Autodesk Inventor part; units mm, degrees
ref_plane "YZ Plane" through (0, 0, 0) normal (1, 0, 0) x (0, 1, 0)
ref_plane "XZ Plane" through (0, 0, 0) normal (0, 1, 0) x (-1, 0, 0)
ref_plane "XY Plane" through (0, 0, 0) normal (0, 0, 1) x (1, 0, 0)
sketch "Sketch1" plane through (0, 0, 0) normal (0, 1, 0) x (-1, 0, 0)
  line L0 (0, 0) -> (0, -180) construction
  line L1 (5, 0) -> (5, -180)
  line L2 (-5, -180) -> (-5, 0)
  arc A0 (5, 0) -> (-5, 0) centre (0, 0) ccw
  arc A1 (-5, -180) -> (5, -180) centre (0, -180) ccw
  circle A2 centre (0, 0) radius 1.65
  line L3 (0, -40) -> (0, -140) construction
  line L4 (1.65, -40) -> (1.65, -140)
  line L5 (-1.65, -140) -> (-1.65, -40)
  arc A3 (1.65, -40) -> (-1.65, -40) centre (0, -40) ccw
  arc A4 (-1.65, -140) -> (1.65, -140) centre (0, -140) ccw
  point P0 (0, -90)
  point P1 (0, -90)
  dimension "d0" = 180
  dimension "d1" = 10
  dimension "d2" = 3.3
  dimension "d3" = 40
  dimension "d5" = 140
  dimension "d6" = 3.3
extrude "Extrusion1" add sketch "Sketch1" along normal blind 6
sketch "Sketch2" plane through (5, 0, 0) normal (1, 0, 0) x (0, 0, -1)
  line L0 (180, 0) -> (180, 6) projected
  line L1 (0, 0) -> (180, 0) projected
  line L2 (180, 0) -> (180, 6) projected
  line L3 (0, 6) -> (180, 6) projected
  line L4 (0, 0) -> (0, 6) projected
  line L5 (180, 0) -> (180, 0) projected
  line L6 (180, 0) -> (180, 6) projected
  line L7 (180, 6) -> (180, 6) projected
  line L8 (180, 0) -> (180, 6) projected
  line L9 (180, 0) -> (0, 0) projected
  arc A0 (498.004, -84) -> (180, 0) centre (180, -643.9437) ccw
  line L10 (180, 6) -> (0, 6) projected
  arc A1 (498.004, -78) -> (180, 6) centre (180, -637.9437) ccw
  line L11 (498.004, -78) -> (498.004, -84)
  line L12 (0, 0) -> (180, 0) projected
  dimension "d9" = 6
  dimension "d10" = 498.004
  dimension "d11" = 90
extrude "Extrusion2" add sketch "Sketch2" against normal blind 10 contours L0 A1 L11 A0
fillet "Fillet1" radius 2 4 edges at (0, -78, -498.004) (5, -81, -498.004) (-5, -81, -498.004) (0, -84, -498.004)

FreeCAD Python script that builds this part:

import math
import FreeCAD as App
import Part
import Sketcher
from FreeCAD import Vector
Q = App.Units.Quantity


def edges_at(feature, points):
    """Names of the edges that pass closest to the given points."""
    edges = feature.Shape.Edges
    near = lambda p: min(range(len(edges)), key=lambda i: edges[i].distToShape(Part.Vertex(*p))[0])
    return sorted({f"Edge{near(p) + 1}" for p in points})

doc = App.newDocument("Part")
body = doc.addObject("PartDesign::Body", "Body")

sketch1 = body.newObject("Sketcher::SketchObject", "Sketch")
sketch1.AttachmentSupport = (doc.getObject("XZ_Plane"), [""])
sketch1.MapMode = "FlatFace"
sketch1.addGeometry([
    Part.LineSegment(Vector(-5, -180, 0), Vector(-5, 0, 0)),
    Part.ArcOfCircle(Part.Circle(Vector(0, 0, 0), Vector(0, 0, 1), 5), math.radians(0), math.radians(180)),
    Part.LineSegment(Vector(5, 0, 0), Vector(5, -180, 0)),
    Part.ArcOfCircle(Part.Circle(Vector(0, -180, 0), Vector(0, 0, 1), 5), math.radians(180), math.radians(360)),
    Part.ArcOfCircle(Part.Circle(Vector(0, -40, 0), Vector(0, 0, 1), 1.65), math.radians(0), math.radians(180)),
    Part.LineSegment(Vector(-1.65, -40, 0), Vector(-1.65, -140, 0)),
    Part.ArcOfCircle(Part.Circle(Vector(0, -140, 0), Vector(0, 0, 1), 1.65), math.radians(180), math.radians(360)),
    Part.LineSegment(Vector(1.65, -140, 0), Vector(1.65, -40, 0)),
    Part.Circle(Vector(0, 0, 0), Vector(0, 0, 1), 1.65),
], False)
sketch1.addConstraint([
    Sketcher.Constraint("Tangent", 0, 2, 1, 2),
    Sketcher.Constraint("Tangent", 1, 1, 2, 1),
    Sketcher.Constraint("Tangent", 2, 2, 3, 2),
    Sketcher.Constraint("Tangent", 3, 1, 0, 1),
    Sketcher.Constraint("Tangent", 4, 2, 5, 1),
    Sketcher.Constraint("Tangent", 5, 2, 6, 1),
    Sketcher.Constraint("Tangent", 6, 2, 7, 1),
    Sketcher.Constraint("Tangent", 7, 2, 4, 1),
    Sketcher.Constraint("Vertical", 0),
    Sketcher.Constraint("Vertical", 2),
    Sketcher.Constraint("Vertical", 5),
    Sketcher.Constraint("Vertical", 7),
    Sketcher.Constraint("Coincident", 1, 3, -1, 1),
    Sketcher.Constraint("Coincident", 8, 3, -1, 1),
    Sketcher.Constraint("Equal", 6, 8),
    Sketcher.Constraint("PointOnObject", 4, 3, -2),
    Sketcher.Constraint("Radius", 1, Q("5 mm")),
    Sketcher.Constraint("Diameter", 8, Q("3.3 mm")),
    Sketcher.Constraint("DistanceY", 0, 1, 0, 2, Q("180 mm")),
    Sketcher.Constraint("DistanceY", 4, 3, -1, 1, Q("40 mm")),
    Sketcher.Constraint("DistanceY", 6, 3, -1, 1, Q("140 mm")),
])
pad1 = body.newObject("PartDesign::Pad", "Pad")
pad1.Profile = sketch1
pad1.Length = 6
pad1.Reversed = True

sketch2 = body.newObject("Sketcher::SketchObject", "Sketch001")
sketch2.AttachmentSupport = (doc.getObject("YZ_Plane"), [""])
sketch2.MapMode = "FlatFace"
sketch2.AttachmentOffset = App.Placement(Vector(0, 0, 5), App.Rotation())
sketch2.addGeometry([
    Part.LineSegment(Vector(6, -180, 0), Vector(0, -180, 0)),
    Part.ArcOfCircle(Part.Circle(Vector(-643.9437, -180, 0), Vector(0, 0, 1), 643.943702), math.radians(-29.593169), math.radians(0)),
    Part.LineSegment(Vector(-84, -498.004, 0), Vector(-78, -498.004, 0)),
    Part.ArcOfCircle(Part.Circle(Vector(-637.9437, -180, 0), Vector(0, 0, 1), 643.943702), math.radians(-29.593169), math.radians(0)),
], False)
sketch2.addConstraint([
    Sketcher.Constraint("Coincident", 0, 2, 1, 2),
    Sketcher.Constraint("Coincident", 1, 1, 2, 1),
    Sketcher.Constraint("Coincident", 2, 2, 3, 1),
    Sketcher.Constraint("Coincident", 3, 2, 0, 1),
    Sketcher.Constraint("Horizontal", 0),
    Sketcher.Constraint("Horizontal", 2),
    Sketcher.Constraint("Equal", 1, 3),
    Sketcher.Constraint("PointOnObject", 0, 2, -2),
    Sketcher.Constraint("Horizontal", 1, 3, 3, 3),
    Sketcher.Constraint("Horizontal", 3, 3, 0, 2),
    Sketcher.Constraint("DistanceX", 0, 2, 0, 1, Q("6 mm")),
    Sketcher.Constraint("DistanceY", 1, 3, -1, 1, Q("180 mm")),
    Sketcher.Constraint("DistanceY", 2, 2, -1, 1, Q("498.004 mm")),
    Sketcher.Constraint("DistanceX", 2, 2, -1, 1, Q("78 mm")),
])
pad2 = body.newObject("PartDesign::Pad", "Pad001")
pad2.Profile = sketch2
pad2.Length = 10
pad2.Reversed = True
doc.recompute()

fillet = body.newObject("PartDesign::Fillet", "Fillet")
fillet.Base = (pad2, edges_at(pad2, [
    (0, -78, -498.004),
    (5, -81, -498.004),
    (-5, -81, -498.004),
    (0, -84, -498.004),
]))
fillet.Radius = 2

doc.recompute()
